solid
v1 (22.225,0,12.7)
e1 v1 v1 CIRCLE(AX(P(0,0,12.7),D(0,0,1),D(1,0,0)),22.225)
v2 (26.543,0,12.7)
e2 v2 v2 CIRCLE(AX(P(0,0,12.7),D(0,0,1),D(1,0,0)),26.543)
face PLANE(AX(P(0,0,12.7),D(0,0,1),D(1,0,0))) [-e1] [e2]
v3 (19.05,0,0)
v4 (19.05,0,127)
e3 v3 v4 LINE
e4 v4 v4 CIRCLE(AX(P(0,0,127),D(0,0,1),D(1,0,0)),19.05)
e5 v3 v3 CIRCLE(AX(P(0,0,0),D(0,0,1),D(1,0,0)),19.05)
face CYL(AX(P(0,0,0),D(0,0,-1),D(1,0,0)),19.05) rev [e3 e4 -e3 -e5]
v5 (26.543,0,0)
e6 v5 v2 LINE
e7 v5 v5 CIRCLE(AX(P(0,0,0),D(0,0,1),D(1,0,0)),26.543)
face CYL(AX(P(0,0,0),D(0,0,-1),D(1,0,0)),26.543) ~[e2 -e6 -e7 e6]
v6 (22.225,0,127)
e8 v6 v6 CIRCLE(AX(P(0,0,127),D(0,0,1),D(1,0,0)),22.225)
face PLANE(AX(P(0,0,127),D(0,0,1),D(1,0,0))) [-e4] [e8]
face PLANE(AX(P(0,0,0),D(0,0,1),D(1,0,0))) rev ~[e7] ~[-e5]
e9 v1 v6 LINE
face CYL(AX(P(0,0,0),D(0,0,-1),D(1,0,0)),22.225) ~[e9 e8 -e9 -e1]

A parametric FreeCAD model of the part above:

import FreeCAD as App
import Part
import Sketcher
Q = App.Units.Quantity

doc = App.newDocument("Part")
params = doc.addObject("Spreadsheet::Sheet", "Params")
for row, (alias, value) in enumerate([
    ("sketch1_diameter", "1.5 in"),
    ("sketch1_diameter2", "1.75 in"),
    ("pad1_length", "5 in"),
    ("sketch2_diameter", "2.09 in"),
    ("sketch2_diameter2", "1.75 in"),
    ("pad2_length", "0.5 in"),
], start=1):
    params.set(f"A{row}", alias)
    params.set(f"B{row}", "=" + value)
    params.setAlias(f"B{row}", alias)

body = doc.addObject("PartDesign::Body", "Body")

# Sketch on XY plane
sketch1 = body.newObject("Sketcher::SketchObject", "Sketch")
sketch1.AttachmentSupport = (doc.getObject("XY_Plane"), [""])
sketch1.MapMode = "FlatFace"
sketch1.addGeometry([
    Part.Circle(App.Vector(0, 0, 0), App.Vector(0, 0, 1), 22),
    Part.Circle(App.Vector(0, 0, 0), App.Vector(0, 0, 1), 19),
], False)
sketch1.addConstraint([
    Sketcher.Constraint("Coincident", 0, 3, -1, 1),
    Sketcher.Constraint("Coincident", 1, 3, -1, 1),
    Sketcher.Constraint("Diameter", 1, Q("1.5 in")),
    Sketcher.Constraint("Diameter", 0, Q("1.75 in")),
])
sketch1.setExpression("Constraints[2]", "Params.sketch1_diameter")
sketch1.setExpression("Constraints[3]", "Params.sketch1_diameter2")
pad1 = body.newObject("PartDesign::Pad", "Pad")
pad1.Profile = sketch1
pad1.setExpression("Length", "Params.pad1_length")

# Sketch on XY plane
sketch2 = body.newObject("Sketcher::SketchObject", "Sketch001")
sketch2.AttachmentSupport = (doc.getObject("XY_Plane"), [""])
sketch2.MapMode = "FlatFace"
sketch2.addGeometry([
    Part.Circle(App.Vector(0, 0, 0), App.Vector(0, 0, 1), 27),
    Part.Circle(App.Vector(0, 0, 0), App.Vector(0, 0, 1), 22),
], False)
sketch2.addConstraint([
    Sketcher.Constraint("Coincident", 0, 3, -1, 1),
    Sketcher.Constraint("Coincident", 1, 3, -1, 1),
    Sketcher.Constraint("Diameter", 0, Q("2.09 in")),
    Sketcher.Constraint("Diameter", 1, Q("1.75 in")),
])
sketch2.setExpression("Constraints[2]", "Params.sketch2_diameter")
sketch2.setExpression("Constraints[3]", "Params.sketch2_diameter2")
pad2 = body.newObject("PartDesign::Pad", "Pad001")
pad2.Profile = sketch2
pad2.setExpression("Length", "Params.pad2_length")

doc.recompute()
